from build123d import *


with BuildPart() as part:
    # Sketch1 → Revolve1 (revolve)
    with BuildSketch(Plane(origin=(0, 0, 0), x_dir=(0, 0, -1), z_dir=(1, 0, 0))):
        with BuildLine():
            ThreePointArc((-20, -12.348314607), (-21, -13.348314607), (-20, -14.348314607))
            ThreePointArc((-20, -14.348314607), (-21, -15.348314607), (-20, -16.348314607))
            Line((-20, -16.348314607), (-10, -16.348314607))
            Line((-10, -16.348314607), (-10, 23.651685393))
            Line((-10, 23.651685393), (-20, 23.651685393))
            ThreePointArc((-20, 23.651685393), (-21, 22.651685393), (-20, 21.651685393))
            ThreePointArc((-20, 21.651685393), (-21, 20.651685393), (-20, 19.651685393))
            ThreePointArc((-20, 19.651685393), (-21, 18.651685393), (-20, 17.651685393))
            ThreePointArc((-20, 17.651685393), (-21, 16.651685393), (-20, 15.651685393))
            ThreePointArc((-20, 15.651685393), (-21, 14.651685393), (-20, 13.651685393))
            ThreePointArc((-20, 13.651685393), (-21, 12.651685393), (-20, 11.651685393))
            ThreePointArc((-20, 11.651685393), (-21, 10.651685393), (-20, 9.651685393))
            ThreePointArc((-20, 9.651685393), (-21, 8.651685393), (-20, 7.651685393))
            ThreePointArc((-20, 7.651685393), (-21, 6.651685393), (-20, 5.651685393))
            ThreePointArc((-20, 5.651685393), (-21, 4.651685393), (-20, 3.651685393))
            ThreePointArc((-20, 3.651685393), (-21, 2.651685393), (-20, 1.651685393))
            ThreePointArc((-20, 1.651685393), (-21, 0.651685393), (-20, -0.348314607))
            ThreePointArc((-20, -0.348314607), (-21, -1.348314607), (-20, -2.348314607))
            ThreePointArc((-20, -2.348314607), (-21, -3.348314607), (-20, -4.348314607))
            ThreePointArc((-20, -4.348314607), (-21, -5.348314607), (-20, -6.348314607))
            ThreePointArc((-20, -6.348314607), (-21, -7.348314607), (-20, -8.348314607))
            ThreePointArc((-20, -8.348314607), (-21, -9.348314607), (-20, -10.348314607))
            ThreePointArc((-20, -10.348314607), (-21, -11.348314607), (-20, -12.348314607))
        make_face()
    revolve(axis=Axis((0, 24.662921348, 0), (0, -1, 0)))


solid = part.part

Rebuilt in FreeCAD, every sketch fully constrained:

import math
import FreeCAD as App
import Part
import Sketcher
from FreeCAD import Vector
Q = App.Units.Quantity

doc = App.newDocument("Part")
body = doc.addObject("PartDesign::Body", "Body")

# Sketch on YZ plane
sketch1 = body.newObject("Sketcher::SketchObject", "Sketch")
sketch1.AttachmentSupport = (doc.getObject("YZ_Plane"), [""])
sketch1.MapMode = "FlatFace"
sketch1.addGeometry(Part.ArcOfCircle(Part.Circle(Vector(-13.348315, 20, 0), Vector(0, 0, 1), 1), math.radians(0), math.radians(180)), False)
sketch1.addGeometry(Part.ArcOfCircle(Part.Circle(Vector(-15.348315, 20, 0), Vector(0, 0, 1), 1), math.radians(0), math.radians(180)), False)
sketch1.addGeometry(Part.LineSegment(Vector(-16.348315, 20, 0), Vector(-16.348315, 10, 0)), False)
sketch1.addGeometry(Part.LineSegment(Vector(-16.348315, 10, 0), Vector(23.651685, 10, 0)), False)
sketch1.addGeometry(Part.LineSegment(Vector(23.651685, 10, 0), Vector(23.651685, 20, 0)), False)
sketch1.addGeometry(Part.ArcOfCircle(Part.Circle(Vector(22.651685, 20, 0), Vector(0, 0, 1), 1), math.radians(0), math.radians(180)), False)
sketch1.addGeometry(Part.ArcOfCircle(Part.Circle(Vector(20.651685, 20, 0), Vector(0, 0, 1), 1), math.radians(0), math.radians(180)), False)
sketch1.addGeometry(Part.ArcOfCircle(Part.Circle(Vector(18.651685, 20, 0), Vector(0, 0, 1), 1), math.radians(0), math.radians(180)), False)
sketch1.addGeometry(Part.ArcOfCircle(Part.Circle(Vector(16.651685, 20, 0), Vector(0, 0, 1), 1), math.radians(0), math.radians(180)), False)
sketch1.addGeometry(Part.ArcOfCircle(Part.Circle(Vector(14.651685, 20, 0), Vector(0, 0, 1), 1), math.radians(0), math.radians(180)), False)
sketch1.addGeometry(Part.ArcOfCircle(Part.Circle(Vector(12.651685, 20, 0), Vector(0, 0, 1), 1), math.radians(0), math.radians(180)), False)
sketch1.addGeometry(Part.ArcOfCircle(Part.Circle(Vector(10.651685, 20, 0), Vector(0, 0, 1), 1), math.radians(0), math.radians(180)), False)
sketch1.addGeometry(Part.ArcOfCircle(Part.Circle(Vector(8.651685, 20, 0), Vector(0, 0, 1), 1), math.radians(0), math.radians(180)), False)
sketch1.addGeometry(Part.ArcOfCircle(Part.Circle(Vector(6.651685, 20, 0), Vector(0, 0, 1), 1), math.radians(0), math.radians(180)), False)
sketch1.addGeometry(Part.ArcOfCircle(Part.Circle(Vector(4.651685, 20, 0), Vector(0, 0, 1), 1), math.radians(0), math.radians(180)), False)
sketch1.addGeometry(Part.ArcOfCircle(Part.Circle(Vector(2.651685, 20, 0), Vector(0, 0, 1), 1), math.radians(0), math.radians(180)), False)
sketch1.addGeometry(Part.ArcOfCircle(Part.Circle(Vector(0.651685, 20, 0), Vector(0, 0, 1), 1), math.radians(0), math.radians(180)), False)
sketch1.addGeometry(Part.ArcOfCircle(Part.Circle(Vector(-1.348315, 20, 0), Vector(0, 0, 1), 1), math.radians(0), math.radians(180)), False)
sketch1.addGeometry(Part.ArcOfCircle(Part.Circle(Vector(-3.348315, 20, 0), Vector(0, 0, 1), 1), math.radians(0), math.radians(180)), False)
sketch1.addGeometry(Part.ArcOfCircle(Part.Circle(Vector(-5.348315, 20, 0), Vector(0, 0, 1), 1), math.radians(0), math.radians(180)), False)
sketch1.addGeometry(Part.ArcOfCircle(Part.Circle(Vector(-7.348315, 20, 0), Vector(0, 0, 1), 1), math.radians(0), math.radians(180)), False)
sketch1.addGeometry(Part.ArcOfCircle(Part.Circle(Vector(-9.348315, 20, 0), Vector(0, 0, 1), 1), math.radians(0), math.radians(180)), False)
sketch1.addGeometry(Part.ArcOfCircle(Part.Circle(Vector(-11.348315, 20, 0), Vector(0, 0, 1), 1), math.radians(0), math.radians(180)), False)
sketch1.addConstraint(Sketcher.Constraint("Tangent", 0, 2, 1, 1))
sketch1.addConstraint(Sketcher.Constraint("Tangent", 1, 2, 2, 1))
sketch1.addConstraint(Sketcher.Constraint("Coincident", 2, 2, 3, 1))
sketch1.addConstraint(Sketcher.Constraint("Coincident", 3, 2, 4, 1))
sketch1.addConstraint(Sketcher.Constraint("Tangent", 4, 2, 5, 1))
sketch1.addConstraint(Sketcher.Constraint("Tangent", 5, 2, 6, 1))
sketch1.addConstraint(Sketcher.Constraint("Tangent", 6, 2, 7, 1))
sketch1.addConstraint(Sketcher.Constraint("Tangent", 7, 2, 8, 1))
sketch1.addConstraint(Sketcher.Constraint("Tangent", 8, 2, 9, 1))
sketch1.addConstraint(Sketcher.Constraint("Tangent", 9, 2, 10, 1))
sketch1.addConstraint(Sketcher.Constraint("Tangent", 10, 2, 11, 1))
sketch1.addConstraint(Sketcher.Constraint("Tangent", 11, 2, 12, 1))
sketch1.addConstraint(Sketcher.Constraint("Tangent", 12, 2, 13, 1))
sketch1.addConstraint(Sketcher.Constraint("Tangent", 13, 2, 14, 1))
sketch1.addConstraint(Sketcher.Constraint("Tangent", 14, 2, 15, 1))
sketch1.addConstraint(Sketcher.Constraint("Tangent", 15, 2, 16, 1))
sketch1.addConstraint(Sketcher.Constraint("Tangent", 16, 2, 17, 1))
sketch1.addConstraint(Sketcher.Constraint("Tangent", 17, 2, 18, 1))
sketch1.addConstraint(Sketcher.Constraint("Tangent", 18, 2, 19, 1))
sketch1.addConstraint(Sketcher.Constraint("Tangent", 19, 2, 20, 1))
sketch1.addConstraint(Sketcher.Constraint("Tangent", 20, 2, 21, 1))
sketch1.addConstraint(Sketcher.Constraint("Tangent", 21, 2, 22, 1))
sketch1.addConstraint(Sketcher.Constraint("Tangent", 22, 2, 0, 1))
sketch1.addConstraint(Sketcher.Constraint("Vertical", 2))
sketch1.addConstraint(Sketcher.Constraint("Horizontal", 3))
sketch1.addConstraint(Sketcher.Constraint("Vertical", 4))
sketch1.addConstraint(Sketcher.Constraint("Equal", 0, 1))
sketch1.addConstraint(Sketcher.Constraint("Equal", 1, 5))
sketch1.addConstraint(Sketcher.Constraint("Equal", 5, 6))
sketch1.addConstraint(Sketcher.Constraint("Equal", 6, 7))
sketch1.addConstraint(Sketcher.Constraint("Equal", 7, 8))
sketch1.addConstraint(Sketcher.Constraint("Equal", 8, 9))
sketch1.addConstraint(Sketcher.Constraint("Equal", 9, 10))
sketch1.addConstraint(Sketcher.Constraint("Equal", 10, 11))
sketch1.addConstraint(Sketcher.Constraint("Equal", 11, 12))
sketch1.addConstraint(Sketcher.Constraint("Equal", 12, 13))
sketch1.addConstraint(Sketcher.Constraint("Equal", 13, 14))
sketch1.addConstraint(Sketcher.Constraint("Equal", 14, 15))
sketch1.addConstraint(Sketcher.Constraint("Equal", 15, 16))
sketch1.addConstraint(Sketcher.Constraint("Equal", 16, 17))
sketch1.addConstraint(Sketcher.Constraint("Equal", 17, 18))
sketch1.addConstraint(Sketcher.Constraint("Equal", 18, 19))
sketch1.addConstraint(Sketcher.Constraint("Equal", 19, 20))
sketch1.addConstraint(Sketcher.Constraint("Equal", 20, 21))
sketch1.addConstraint(Sketcher.Constraint("Equal", 21, 22))
sketch1.addConstraint(Sketcher.Constraint("Horizontal", 0, 3, 1, 3))
sketch1.addConstraint(Sketcher.Constraint("Horizontal", 1, 3, 5, 3))
sketch1.addConstraint(Sketcher.Constraint("Horizontal", 5, 3, 6, 3))
sketch1.addConstraint(Sketcher.Constraint("Horizontal", 6, 3, 7, 3))
sketch1.addConstraint(Sketcher.Constraint("Horizontal", 7, 3, 8, 3))
sketch1.addConstraint(Sketcher.Constraint("Horizontal", 8, 3, 9, 3))
sketch1.addConstraint(Sketcher.Constraint("Horizontal", 9, 3, 10, 3))
sketch1.addConstraint(Sketcher.Constraint("Horizontal", 10, 3, 11, 3))
sketch1.addConstraint(Sketcher.Constraint("Horizontal", 11, 3, 12, 3))
sketch1.addConstraint(Sketcher.Constraint("Horizontal", 12, 3, 13, 3))
sketch1.addConstraint(Sketcher.Constraint("Horizontal", 13, 3, 14, 3))
sketch1.addConstraint(Sketcher.Constraint("Horizontal", 14, 3, 15, 3))
sketch1.addConstraint(Sketcher.Constraint("Horizontal", 15, 3, 16, 3))
sketch1.addConstraint(Sketcher.Constraint("Horizontal", 16, 3, 17, 3))
sketch1.addConstraint(Sketcher.Constraint("Horizontal", 17, 3, 18, 3))
sketch1.addConstraint(Sketcher.Constraint("Horizontal", 18, 3, 19, 3))
sketch1.addConstraint(Sketcher.Constraint("Horizontal", 19, 3, 20, 3))
sketch1.addConstraint(Sketcher.Constraint("Horizontal", 20, 3, 21, 3))
sketch1.addConstraint(Sketcher.Constraint("Horizontal", 21, 3, 22, 3))
sketch1.addConstraint(Sketcher.Constraint("Radius", 0, Q("1 mm")))
sketch1.addConstraint(Sketcher.Constraint("DistanceY", 2, 2, 2, 1, Q("10 mm")))
sketch1.addConstraint(Sketcher.Constraint("DistanceY", -1, 1, 0, 3, Q("20 mm")))
sketch1.addConstraint(Sketcher.Constraint("DistanceX", 0, 3, -1, 1, Q("13.348315 mm")))
revolution = body.newObject("PartDesign::Revolution", "Revolution")
revolution.Profile = sketch1
revolution.ReferenceAxis = (sketch1, ["H_Axis"])
revolution.Angle = 360

doc.recompute()
